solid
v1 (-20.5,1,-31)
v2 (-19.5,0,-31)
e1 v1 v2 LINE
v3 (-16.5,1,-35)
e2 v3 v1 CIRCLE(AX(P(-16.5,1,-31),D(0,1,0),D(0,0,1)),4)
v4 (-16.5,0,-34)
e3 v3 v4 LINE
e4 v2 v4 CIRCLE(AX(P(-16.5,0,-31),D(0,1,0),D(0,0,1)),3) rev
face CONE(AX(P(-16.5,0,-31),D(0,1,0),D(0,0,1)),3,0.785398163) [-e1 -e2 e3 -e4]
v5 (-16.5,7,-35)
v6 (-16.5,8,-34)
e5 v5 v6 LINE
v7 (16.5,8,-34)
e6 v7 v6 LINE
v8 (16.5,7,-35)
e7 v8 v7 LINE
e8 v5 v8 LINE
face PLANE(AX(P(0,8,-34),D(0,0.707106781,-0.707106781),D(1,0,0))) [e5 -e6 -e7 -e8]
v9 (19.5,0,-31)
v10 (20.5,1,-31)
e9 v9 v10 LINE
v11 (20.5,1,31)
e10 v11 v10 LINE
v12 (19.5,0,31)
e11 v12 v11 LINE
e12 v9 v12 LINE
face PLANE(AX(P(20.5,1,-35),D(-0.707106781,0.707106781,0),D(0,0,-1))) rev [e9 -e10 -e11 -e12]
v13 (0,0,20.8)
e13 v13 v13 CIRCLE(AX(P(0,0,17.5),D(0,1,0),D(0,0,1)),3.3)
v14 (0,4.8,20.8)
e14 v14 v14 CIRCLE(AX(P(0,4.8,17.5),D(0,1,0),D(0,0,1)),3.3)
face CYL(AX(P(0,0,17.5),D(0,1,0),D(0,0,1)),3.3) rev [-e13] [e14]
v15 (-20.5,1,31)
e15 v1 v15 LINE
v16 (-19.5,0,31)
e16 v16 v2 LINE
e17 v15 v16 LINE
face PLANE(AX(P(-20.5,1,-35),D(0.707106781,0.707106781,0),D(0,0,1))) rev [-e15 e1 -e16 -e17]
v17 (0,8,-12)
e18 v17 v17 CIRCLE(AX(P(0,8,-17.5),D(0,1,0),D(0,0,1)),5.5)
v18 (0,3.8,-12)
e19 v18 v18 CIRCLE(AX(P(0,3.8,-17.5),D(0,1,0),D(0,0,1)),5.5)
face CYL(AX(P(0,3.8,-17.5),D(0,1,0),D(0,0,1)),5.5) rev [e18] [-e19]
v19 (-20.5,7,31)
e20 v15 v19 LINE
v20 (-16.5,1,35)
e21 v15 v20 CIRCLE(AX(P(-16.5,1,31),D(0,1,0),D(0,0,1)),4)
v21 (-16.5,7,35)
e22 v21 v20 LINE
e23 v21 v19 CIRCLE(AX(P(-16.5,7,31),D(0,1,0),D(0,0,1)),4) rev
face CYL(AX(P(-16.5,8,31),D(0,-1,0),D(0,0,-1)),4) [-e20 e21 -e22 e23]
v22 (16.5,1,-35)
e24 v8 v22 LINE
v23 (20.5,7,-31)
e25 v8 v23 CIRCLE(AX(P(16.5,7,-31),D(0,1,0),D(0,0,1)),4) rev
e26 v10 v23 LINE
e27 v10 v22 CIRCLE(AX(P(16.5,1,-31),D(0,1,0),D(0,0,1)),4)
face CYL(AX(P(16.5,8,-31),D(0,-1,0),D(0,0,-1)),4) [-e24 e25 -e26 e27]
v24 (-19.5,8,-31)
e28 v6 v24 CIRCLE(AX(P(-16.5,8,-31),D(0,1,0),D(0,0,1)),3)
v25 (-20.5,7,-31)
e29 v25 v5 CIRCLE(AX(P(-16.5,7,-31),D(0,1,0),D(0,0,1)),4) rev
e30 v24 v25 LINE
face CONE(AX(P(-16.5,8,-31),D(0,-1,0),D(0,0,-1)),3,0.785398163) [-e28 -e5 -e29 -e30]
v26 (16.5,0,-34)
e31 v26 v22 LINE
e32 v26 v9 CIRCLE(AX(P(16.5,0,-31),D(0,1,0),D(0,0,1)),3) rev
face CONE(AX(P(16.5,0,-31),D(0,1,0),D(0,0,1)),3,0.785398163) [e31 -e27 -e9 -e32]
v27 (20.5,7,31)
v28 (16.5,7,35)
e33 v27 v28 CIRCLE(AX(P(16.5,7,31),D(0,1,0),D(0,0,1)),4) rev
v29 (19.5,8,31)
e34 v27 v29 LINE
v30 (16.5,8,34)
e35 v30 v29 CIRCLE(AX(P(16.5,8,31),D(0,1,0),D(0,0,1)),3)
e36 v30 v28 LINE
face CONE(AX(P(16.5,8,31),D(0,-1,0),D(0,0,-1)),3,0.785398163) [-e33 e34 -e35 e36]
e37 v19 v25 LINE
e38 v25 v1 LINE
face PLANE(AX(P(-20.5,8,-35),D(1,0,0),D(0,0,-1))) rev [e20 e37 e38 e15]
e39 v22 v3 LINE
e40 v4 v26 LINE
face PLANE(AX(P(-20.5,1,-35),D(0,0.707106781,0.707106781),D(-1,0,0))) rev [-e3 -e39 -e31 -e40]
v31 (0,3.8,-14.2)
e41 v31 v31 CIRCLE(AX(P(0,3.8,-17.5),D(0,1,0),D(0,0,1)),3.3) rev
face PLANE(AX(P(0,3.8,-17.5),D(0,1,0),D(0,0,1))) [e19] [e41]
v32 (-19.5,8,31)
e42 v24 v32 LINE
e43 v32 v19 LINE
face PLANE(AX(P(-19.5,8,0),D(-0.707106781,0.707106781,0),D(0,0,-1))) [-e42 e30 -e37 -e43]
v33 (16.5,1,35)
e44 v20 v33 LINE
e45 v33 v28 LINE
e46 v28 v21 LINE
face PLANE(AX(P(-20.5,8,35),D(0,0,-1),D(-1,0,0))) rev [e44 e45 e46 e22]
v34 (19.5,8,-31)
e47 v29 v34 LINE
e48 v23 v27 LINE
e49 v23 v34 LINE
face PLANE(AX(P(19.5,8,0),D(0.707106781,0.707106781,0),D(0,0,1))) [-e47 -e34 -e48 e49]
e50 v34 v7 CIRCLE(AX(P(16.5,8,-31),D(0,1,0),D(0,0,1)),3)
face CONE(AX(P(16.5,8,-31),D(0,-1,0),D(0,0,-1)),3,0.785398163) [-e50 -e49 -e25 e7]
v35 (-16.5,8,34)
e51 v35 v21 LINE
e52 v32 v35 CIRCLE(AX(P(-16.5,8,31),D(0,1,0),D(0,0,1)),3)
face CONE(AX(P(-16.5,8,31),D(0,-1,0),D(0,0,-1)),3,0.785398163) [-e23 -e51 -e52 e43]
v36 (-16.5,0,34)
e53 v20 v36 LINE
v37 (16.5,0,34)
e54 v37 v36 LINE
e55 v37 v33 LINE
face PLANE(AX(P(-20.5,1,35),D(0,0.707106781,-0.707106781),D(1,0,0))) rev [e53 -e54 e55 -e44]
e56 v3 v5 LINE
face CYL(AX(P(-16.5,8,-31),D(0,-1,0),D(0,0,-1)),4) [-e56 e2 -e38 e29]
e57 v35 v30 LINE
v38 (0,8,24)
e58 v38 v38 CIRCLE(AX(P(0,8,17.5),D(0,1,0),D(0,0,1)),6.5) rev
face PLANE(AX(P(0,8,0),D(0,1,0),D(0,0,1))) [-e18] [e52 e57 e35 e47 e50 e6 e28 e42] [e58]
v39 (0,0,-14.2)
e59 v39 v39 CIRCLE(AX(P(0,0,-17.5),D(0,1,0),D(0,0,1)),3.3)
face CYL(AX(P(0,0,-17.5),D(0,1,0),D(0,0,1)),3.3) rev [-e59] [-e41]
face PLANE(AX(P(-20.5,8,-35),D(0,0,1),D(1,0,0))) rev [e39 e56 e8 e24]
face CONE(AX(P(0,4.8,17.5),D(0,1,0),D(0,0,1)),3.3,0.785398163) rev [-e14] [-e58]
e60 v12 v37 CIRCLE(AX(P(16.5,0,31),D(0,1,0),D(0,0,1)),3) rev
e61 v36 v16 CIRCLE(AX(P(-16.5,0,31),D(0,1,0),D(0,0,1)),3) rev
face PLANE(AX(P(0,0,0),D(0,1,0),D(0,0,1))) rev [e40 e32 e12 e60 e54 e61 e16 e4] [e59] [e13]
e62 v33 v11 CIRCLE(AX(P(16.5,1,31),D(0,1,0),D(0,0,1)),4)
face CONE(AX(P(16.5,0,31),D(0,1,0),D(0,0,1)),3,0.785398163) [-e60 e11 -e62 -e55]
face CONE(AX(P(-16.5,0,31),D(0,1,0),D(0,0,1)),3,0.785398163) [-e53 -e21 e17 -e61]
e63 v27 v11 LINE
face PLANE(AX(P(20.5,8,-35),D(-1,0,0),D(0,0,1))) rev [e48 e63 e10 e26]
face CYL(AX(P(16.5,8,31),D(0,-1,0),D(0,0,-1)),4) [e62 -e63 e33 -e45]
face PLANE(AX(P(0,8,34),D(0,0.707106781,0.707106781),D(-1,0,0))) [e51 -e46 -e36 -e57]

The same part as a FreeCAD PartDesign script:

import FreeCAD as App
import Part
import Sketcher

V = App.Vector


def edges_at(feature, points):
    """Names of the edges that pass closest to the given points."""
    edges = feature.Shape.Edges
    near = lambda p: min(range(len(edges)), key=lambda i: edges[i].distToShape(Part.Vertex(*p))[0])
    return sorted({f"Edge{near(p) + 1}" for p in points})


def add_polygon(sketch, points):
    """Adds a closed chain of lines whose ends are joined by coincident constraints."""
    first, n = sketch.GeometryCount, len(points)
    for a, b in zip(points, points[1:] + points[:1]):
        sketch.addGeometry(Part.LineSegment(App.Vector(*a, 0), App.Vector(*b, 0)), False)
    for i in range(n):
        sketch.addConstraint(Sketcher.Constraint("Coincident", first + i, 2, first + (i + 1) % n, 1))

doc = App.newDocument("Part")
params = doc.addObject("Spreadsheet::Sheet", "Params")
for row, (alias, value) in enumerate([
    ("sketch1_width", "41 mm"),
    ("sketch1_height", "70 mm"),
    ("pad1_length", "8 mm"),
    ("fillet_radius", "4 mm"),
    ("chamfer_size", "1 mm"),
    ("sketch2_diameter", "6.6 mm"),
    ("pocket1_length", "8 mm"),
    ("chamfer2_size", "3.2 mm"),
    ("sketch3_diameter", "11 mm"),
    ("pocket2_length", "4.2 mm"),
    ("sketch4_diameter", "10.2 mm"),
    ("pocket3_length", "10 mm"),
    ("sketch5_diameter", "20 mm"),
    ("pocket4_length", "4 mm"),
    ("sketch6_diameter", "20 mm"),
    ("pad2_length", "8 mm"),
], start=1):
    params.set(f"A{row}", alias)
    params.set(f"B{row}", "=" + value)
    params.setAlias(f"B{row}", alias)

body = doc.addObject("PartDesign::Body", "Body")

# Sketch on XZ plane
sketch1 = body.newObject("Sketcher::SketchObject", "Sketch")
sketch1.AttachmentSupport = (doc.getObject("XZ_Plane"), [""])
sketch1.MapMode = "FlatFace"
add_polygon(sketch1, [(-20.5, -35), (-20.5, 35), (20.5, 35), (20.5, -35)])  # lines 0-3
sketch1.addConstraint([
    Sketcher.Constraint("Vertical", 0),
    Sketcher.Constraint("Horizontal", 1),
    Sketcher.Constraint("Vertical", 2),
    Sketcher.Constraint("Horizontal", 3),
    Sketcher.Constraint("Symmetric", 0, 2, 2, 2, -1, 1),
    Sketcher.Constraint("DistanceX", 1, 1, 1, 2, 41.0),
    Sketcher.Constraint("DistanceY", 0, 1, 0, 2, 70.0),
])
sketch1.setExpression("Constraints[9]", "Params.sketch1_width")
sketch1.setExpression("Constraints[10]", "Params.sketch1_height")
pad1 = body.newObject("PartDesign::Pad", "Pad")
pad1.Profile = sketch1
pad1.setExpression("Length", "Params.pad1_length")
pad1.Reversed = True
doc.recompute()

fillet = body.newObject("PartDesign::Fillet", "Fillet")
fillet.Base = (pad1, edges_at(pad1, [
    (20.5, 4, 35),
    (-20.5, 4, 35),
    (-20.5, 4, -35),
    (20.5, 4, -35),
]))
fillet.setExpression("Radius", "Params.fillet_radius")
doc.recompute()

chamfer = body.newObject("PartDesign::Chamfer", "Chamfer")
chamfer.Base = (fillet, edges_at(fillet, [
    (-20.5, 0, 0),
    (-20.5, 8, 0),
    (20.5, 0, 0),
    (0, 0, 35),
    (0, 0, -35),
    (-19.328, 0, 33.828),
    (19.328, 0, 33.828),
    (19.328, 0, -33.828),
    (-19.328, 0, -33.828),
    (0, 8, -35),
    (20.5, 8, 0),
    (0, 8, 35),
    (-19.328, 8, 33.828),
    (19.328, 8, 33.828),
    (19.328, 8, -33.828),
    (-19.328, 8, -33.828),
]))
chamfer.setExpression("Size", "Params.chamfer_size")

# Sketch on XZ plane
sketch2 = body.newObject("Sketcher::SketchObject", "Sketch001")
sketch2.AttachmentSupport = (doc.getObject("XZ_Plane"), [""])
sketch2.MapMode = "FlatFace"
sketch2.AttachmentOffset = App.Placement(V(0, 0, -8), App.Rotation())
sketch2.addGeometry([
    Part.Circle(V(0, 17.5, 0), V(0, 0, 1), 3.3),
    Part.Circle(V(0, -17.5, 0), V(0, 0, 1), 3.3),
], False)
sketch2.addConstraint([
    Sketcher.Constraint("Equal", 0, 1),
    Sketcher.Constraint("Symmetric", 0, 3, 1, 3, -1, 1),
    Sketcher.Constraint("PointOnObject", 0, 3, -2),
    Sketcher.Constraint("Diameter", 0, 6.6),
    Sketcher.Constraint("DistanceY", 1, 3, 0, 3, 35.0),
])
sketch2.setExpression("Constraints[3]", "Params.sketch2_diameter")
pocket1 = body.newObject("PartDesign::Pocket", "Pocket")
pocket1.Profile = sketch2
pocket1.setExpression("Length", "Params.pocket1_length")
pocket1.Reversed = True
doc.recompute()

chamfer2 = body.newObject("PartDesign::Chamfer", "Chamfer001")
chamfer2.Base = (pocket1, edges_at(pocket1, [(-3.3, 8, 17.5)]))
chamfer2.setExpression("Size", "Params.chamfer2_size")

# Sketch on XZ plane
sketch3 = body.newObject("Sketcher::SketchObject", "Sketch002")
sketch3.AttachmentSupport = (doc.getObject("XZ_Plane"), [""])
sketch3.MapMode = "FlatFace"
sketch3.AttachmentOffset = App.Placement(V(0, 0, -8), App.Rotation())
sketch3.addGeometry(Part.Circle(V(0, -17.5, 0), V(0, 0, 1), 5.5), False)
sketch3.addConstraint([
    Sketcher.Constraint("PointOnObject", 0, 3, -2),
    Sketcher.Constraint("Diameter", 0, 11.0),
    Sketcher.Constraint("DistanceY", 0, 3, -1, 1, 17.5),
])
sketch3.setExpression("Constraints[1]", "Params.sketch3_diameter")
pocket2 = body.newObject("PartDesign::Pocket", "Pocket001")
pocket2.Profile = sketch3
pocket2.setExpression("Length", "Params.pocket2_length")
pocket2.Reversed = True

# Sketch on XZ plane
sketch4 = body.newObject("Sketcher::SketchObject", "Sketch003")
sketch4.AttachmentSupport = (doc.getObject("XZ_Plane"), [""])
sketch4.MapMode = "FlatFace"
sketch4.AttachmentOffset = App.Placement(V(0, 0, -8), App.Rotation())
sketch4.addGeometry(Part.Circle(V(0, 0, 0), V(0, 0, 1), 5.1), False)
sketch4.addConstraint([
    Sketcher.Constraint("Coincident", 0, 3, -1, 1),
    Sketcher.Constraint("Diameter", 0, 10.2),
])
sketch4.setExpression("Constraints[1]", "Params.sketch4_diameter")
pocket3 = body.newObject("PartDesign::Pocket", "Pocket002")
pocket3.Profile = sketch4
pocket3.setExpression("Length", "Params.pocket3_length")
pocket3.Reversed = True

# Sketch on XZ plane
sketch5 = body.newObject("Sketcher::SketchObject", "Sketch004")
sketch5.AttachmentSupport = (doc.getObject("XZ_Plane"), [""])
sketch5.MapMode = "FlatFace"
sketch5.AttachmentOffset = App.Placement(V(0, 0, -8), App.Rotation())
sketch5.addGeometry(Part.Circle(V(0, 0, 0), V(0, 0, 1), 10), False)
sketch5.addConstraint([
    Sketcher.Constraint("Coincident", 0, 3, -1, 1),
    Sketcher.Constraint("Diameter", 0, 20.0),
])
sketch5.setExpression("Constraints[1]", "Params.sketch5_diameter")
pocket4 = body.newObject("PartDesign::Pocket", "Pocket003")
pocket4.Profile = sketch5
pocket4.setExpression("Length", "Params.pocket4_length")
pocket4.Reversed = True

# Sketch on XZ plane
sketch6 = body.newObject("Sketcher::SketchObject", "Sketch005")
sketch6.AttachmentSupport = (doc.getObject("XZ_Plane"), [""])
sketch6.MapMode = "FlatFace"
sketch6.AttachmentOffset = App.Placement(V(0, 0, -8), App.Rotation())
sketch6.addGeometry(Part.Circle(V(0, 0, 0), V(0, 0, 1), 10), False)
sketch6.addConstraint([
    Sketcher.Constraint("Coincident", 0, 3, -1, 1),
    Sketcher.Constraint("Diameter", 0, 20.0),
])
sketch6.setExpression("Constraints[1]", "Params.sketch6_diameter")
pad2 = body.newObject("PartDesign::Pad", "Pad001")
pad2.Profile = sketch6
pad2.setExpression("Length", "Params.pad2_length")

doc.recompute()
